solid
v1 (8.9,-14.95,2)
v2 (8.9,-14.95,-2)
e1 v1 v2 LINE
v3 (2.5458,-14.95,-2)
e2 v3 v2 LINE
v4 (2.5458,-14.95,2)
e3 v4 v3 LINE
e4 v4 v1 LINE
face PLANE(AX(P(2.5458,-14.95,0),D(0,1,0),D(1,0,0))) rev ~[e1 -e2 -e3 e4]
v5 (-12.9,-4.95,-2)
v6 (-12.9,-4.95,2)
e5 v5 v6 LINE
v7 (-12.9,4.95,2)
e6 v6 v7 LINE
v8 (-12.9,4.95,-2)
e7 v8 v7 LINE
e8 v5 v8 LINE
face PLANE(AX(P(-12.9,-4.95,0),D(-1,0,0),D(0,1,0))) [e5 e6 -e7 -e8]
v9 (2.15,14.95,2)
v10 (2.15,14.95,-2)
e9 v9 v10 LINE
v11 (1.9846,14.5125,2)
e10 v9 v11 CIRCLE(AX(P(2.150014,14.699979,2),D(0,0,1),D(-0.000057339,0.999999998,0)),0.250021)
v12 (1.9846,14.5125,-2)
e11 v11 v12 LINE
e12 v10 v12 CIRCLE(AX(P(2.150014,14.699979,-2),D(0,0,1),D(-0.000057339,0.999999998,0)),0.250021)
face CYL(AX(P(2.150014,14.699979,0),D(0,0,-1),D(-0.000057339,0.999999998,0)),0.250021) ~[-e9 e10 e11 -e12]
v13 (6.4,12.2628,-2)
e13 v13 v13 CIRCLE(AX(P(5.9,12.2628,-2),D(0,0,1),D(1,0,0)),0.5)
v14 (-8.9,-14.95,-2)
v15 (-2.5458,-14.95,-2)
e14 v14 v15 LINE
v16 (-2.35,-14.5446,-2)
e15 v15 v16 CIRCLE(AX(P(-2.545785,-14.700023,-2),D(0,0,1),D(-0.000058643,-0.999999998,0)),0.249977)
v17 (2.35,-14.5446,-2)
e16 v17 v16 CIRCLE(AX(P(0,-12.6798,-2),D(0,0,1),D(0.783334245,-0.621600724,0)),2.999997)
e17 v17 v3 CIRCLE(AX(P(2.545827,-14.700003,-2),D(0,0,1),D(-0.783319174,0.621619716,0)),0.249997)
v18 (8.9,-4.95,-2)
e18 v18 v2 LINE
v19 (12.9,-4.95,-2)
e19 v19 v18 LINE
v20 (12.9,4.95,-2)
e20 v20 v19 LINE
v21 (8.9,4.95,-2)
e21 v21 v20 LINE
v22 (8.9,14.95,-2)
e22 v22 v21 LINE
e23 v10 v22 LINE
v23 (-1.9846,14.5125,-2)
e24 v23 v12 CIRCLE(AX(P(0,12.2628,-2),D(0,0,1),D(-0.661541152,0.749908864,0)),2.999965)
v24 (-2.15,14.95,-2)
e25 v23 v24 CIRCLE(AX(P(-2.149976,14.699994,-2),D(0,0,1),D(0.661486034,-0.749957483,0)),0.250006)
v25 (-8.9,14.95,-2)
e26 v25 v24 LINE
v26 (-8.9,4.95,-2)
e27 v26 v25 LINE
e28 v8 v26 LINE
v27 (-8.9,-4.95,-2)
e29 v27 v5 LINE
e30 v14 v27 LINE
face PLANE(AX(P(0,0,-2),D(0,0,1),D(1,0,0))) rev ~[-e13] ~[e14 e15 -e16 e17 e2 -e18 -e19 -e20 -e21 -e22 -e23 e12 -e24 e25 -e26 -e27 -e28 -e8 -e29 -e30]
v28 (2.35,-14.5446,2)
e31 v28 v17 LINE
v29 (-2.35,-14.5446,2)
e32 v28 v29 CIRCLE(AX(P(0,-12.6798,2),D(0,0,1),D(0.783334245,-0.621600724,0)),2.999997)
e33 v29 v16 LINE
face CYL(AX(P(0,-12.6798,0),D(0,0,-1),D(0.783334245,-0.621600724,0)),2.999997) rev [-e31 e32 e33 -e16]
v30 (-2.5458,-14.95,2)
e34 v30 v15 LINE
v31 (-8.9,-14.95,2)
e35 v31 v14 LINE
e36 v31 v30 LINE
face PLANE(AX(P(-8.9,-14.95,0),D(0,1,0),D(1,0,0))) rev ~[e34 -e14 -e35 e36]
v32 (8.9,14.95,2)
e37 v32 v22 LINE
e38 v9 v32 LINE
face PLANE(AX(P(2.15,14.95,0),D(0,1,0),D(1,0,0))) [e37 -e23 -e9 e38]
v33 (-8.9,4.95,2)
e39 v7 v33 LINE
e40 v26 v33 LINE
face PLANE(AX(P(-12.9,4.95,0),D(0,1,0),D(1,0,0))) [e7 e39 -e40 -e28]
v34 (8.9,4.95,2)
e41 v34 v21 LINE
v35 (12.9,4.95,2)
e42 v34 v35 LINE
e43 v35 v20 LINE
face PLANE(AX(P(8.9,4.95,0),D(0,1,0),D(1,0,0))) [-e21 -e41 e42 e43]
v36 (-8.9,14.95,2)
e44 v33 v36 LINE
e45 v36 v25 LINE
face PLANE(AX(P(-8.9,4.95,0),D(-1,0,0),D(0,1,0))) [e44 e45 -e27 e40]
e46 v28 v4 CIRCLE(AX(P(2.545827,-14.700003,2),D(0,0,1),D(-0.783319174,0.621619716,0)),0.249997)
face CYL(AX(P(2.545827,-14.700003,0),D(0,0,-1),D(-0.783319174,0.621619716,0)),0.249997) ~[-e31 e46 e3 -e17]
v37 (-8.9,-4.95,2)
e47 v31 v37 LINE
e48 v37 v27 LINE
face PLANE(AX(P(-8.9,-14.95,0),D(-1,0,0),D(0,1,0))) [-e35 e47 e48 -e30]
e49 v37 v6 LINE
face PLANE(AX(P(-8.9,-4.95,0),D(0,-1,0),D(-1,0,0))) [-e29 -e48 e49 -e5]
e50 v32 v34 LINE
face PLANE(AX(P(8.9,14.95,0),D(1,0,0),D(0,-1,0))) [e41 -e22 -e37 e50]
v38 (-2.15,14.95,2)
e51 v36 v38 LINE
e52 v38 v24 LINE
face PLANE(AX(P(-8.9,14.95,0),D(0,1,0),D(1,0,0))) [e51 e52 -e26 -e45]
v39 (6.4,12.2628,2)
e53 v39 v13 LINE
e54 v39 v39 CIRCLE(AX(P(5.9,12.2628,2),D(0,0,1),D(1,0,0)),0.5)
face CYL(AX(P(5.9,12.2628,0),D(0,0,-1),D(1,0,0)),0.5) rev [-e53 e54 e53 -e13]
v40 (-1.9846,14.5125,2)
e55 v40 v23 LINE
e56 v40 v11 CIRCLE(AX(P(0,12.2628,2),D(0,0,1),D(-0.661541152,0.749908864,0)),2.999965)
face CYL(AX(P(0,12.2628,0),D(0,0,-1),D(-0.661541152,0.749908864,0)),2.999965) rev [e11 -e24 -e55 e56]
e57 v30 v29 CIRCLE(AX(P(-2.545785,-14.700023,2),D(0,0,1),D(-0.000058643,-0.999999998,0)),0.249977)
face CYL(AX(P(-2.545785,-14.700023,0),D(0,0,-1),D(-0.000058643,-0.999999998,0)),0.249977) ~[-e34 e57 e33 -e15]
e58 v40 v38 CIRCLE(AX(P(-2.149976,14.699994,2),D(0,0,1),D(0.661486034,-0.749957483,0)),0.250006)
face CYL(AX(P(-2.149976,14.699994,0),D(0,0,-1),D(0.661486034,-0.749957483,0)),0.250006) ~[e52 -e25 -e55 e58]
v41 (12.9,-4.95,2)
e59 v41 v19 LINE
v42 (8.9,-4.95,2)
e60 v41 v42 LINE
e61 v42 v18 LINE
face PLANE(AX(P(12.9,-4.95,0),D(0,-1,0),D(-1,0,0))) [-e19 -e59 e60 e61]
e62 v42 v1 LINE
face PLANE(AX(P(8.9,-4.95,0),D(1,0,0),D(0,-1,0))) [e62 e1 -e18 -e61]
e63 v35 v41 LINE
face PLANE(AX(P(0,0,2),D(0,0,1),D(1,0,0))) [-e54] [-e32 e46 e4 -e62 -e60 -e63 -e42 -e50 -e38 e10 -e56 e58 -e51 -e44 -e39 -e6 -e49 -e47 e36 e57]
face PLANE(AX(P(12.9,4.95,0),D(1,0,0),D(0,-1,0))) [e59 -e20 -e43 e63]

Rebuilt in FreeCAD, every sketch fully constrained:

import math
import FreeCAD as App
import Part
import Sketcher

doc = App.newDocument("Part")
body = doc.addObject("PartDesign::Body", "Body")

sketch1 = body.newObject("Sketcher::SketchObject", "Sketch")
sketch1.AttachmentSupport = (doc.getObject("XY_Plane"), [""])
sketch1.MapMode = "FlatFace"
sketch1.addGeometry(Part.LineSegment(App.Vector(-8.9, 14.95, 0), App.Vector(-8.9, 4.95, 0)), False)
sketch1.addGeometry(Part.LineSegment(App.Vector(-8.9, 4.95, 0), App.Vector(-12.9, 4.95, 0)), False)
sketch1.addGeometry(Part.LineSegment(App.Vector(-12.9, 4.95, 0), App.Vector(-12.9, -4.95, 0)), False)
sketch1.addGeometry(Part.LineSegment(App.Vector(-12.9, -4.95, 0), App.Vector(-8.9, -4.95, 0)), False)
sketch1.addGeometry(Part.LineSegment(App.Vector(-8.9, -4.95, 0), App.Vector(-8.9, -14.95, 0)), False)
sketch1.addGeometry(Part.LineSegment(App.Vector(-8.9, -14.95, 0), App.Vector(-2.55, -14.95, 0)), False)
sketch1.addGeometry(Part.ArcOfCircle(Part.Circle(App.Vector(-2.55, -14.7, 0), App.Vector(0, 0, 1), 0.25), math.radians(-90), math.radians(38)), False)
sketch1.addGeometry(Part.ArcOfCircle(Part.Circle(App.Vector(0, -12.68, 0), App.Vector(0, 0, 1), 3), math.radians(-38), math.radians(218)), False)
sketch1.addGeometry(Part.ArcOfCircle(Part.Circle(App.Vector(2.55, -14.7, 0), App.Vector(0, 0, 1), 0.25), math.radians(142), math.radians(270)), False)
sketch1.addGeometry(Part.LineSegment(App.Vector(2.55, -14.95, 0), App.Vector(8.9, -14.95, 0)), False)
sketch1.addGeometry(Part.LineSegment(App.Vector(8.9, -14.95, 0), App.Vector(8.9, -4.95, 0)), False)
sketch1.addGeometry(Part.LineSegment(App.Vector(8.9, -4.95, 0), App.Vector(12.9, -4.95, 0)), False)
sketch1.addGeometry(Part.LineSegment(App.Vector(12.9, -4.95, 0), App.Vector(12.9, 4.95, 0)), False)
sketch1.addGeometry(Part.LineSegment(App.Vector(12.9, 4.95, 0), App.Vector(8.9, 4.95, 0)), False)
sketch1.addGeometry(Part.LineSegment(App.Vector(8.9, 4.95, 0), App.Vector(8.9, 14.95, 0)), False)
sketch1.addGeometry(Part.LineSegment(App.Vector(8.9, 14.95, 0), App.Vector(2.15, 14.95, 0)), False)
sketch1.addGeometry(Part.ArcOfCircle(Part.Circle(App.Vector(2.15, 14.7, 0), App.Vector(0, 0, 1), 0.25), math.radians(90), math.radians(229)), False)
sketch1.addGeometry(Part.ArcOfCircle(Part.Circle(App.Vector(0, 12.26, 0), App.Vector(0, 0, 1), 3), math.radians(131), math.radians(409)), False)
sketch1.addGeometry(Part.ArcOfCircle(Part.Circle(App.Vector(-2.15, 14.7, 0), App.Vector(0, 0, 1), 0.25), math.radians(-49), math.radians(90)), False)
sketch1.addGeometry(Part.LineSegment(App.Vector(-2.15, 14.95, 0), App.Vector(-8.9, 14.95, 0)), False)
sketch1.addGeometry(Part.Circle(App.Vector(5.9, 12.26, 0), App.Vector(0, 0, 1), 0.5), False)
sketch1.addConstraint(Sketcher.Constraint("Coincident", 0, 2, 1, 1))
sketch1.addConstraint(Sketcher.Constraint("Coincident", 1, 2, 2, 1))
sketch1.addConstraint(Sketcher.Constraint("Coincident", 2, 2, 3, 1))
sketch1.addConstraint(Sketcher.Constraint("Coincident", 3, 2, 4, 1))
sketch1.addConstraint(Sketcher.Constraint("Coincident", 4, 2, 5, 1))
sketch1.addConstraint(Sketcher.Constraint("Tangent", 5, 2, 6, 1))
sketch1.addConstraint(Sketcher.Constraint("Tangent", 6, 2, 7, 2))
sketch1.addConstraint(Sketcher.Constraint("Tangent", 7, 1, 8, 1))
sketch1.addConstraint(Sketcher.Constraint("Tangent", 8, 2, 9, 1))
sketch1.addConstraint(Sketcher.Constraint("Coincident", 9, 2, 10, 1))
sketch1.addConstraint(Sketcher.Constraint("Coincident", 10, 2, 11, 1))
sketch1.addConstraint(Sketcher.Constraint("Coincident", 11, 2, 12, 1))
sketch1.addConstraint(Sketcher.Constraint("Coincident", 12, 2, 13, 1))
sketch1.addConstraint(Sketcher.Constraint("Coincident", 13, 2, 14, 1))
sketch1.addConstraint(Sketcher.Constraint("Coincident", 14, 2, 15, 1))
sketch1.addConstraint(Sketcher.Constraint("Tangent", 15, 2, 16, 1))
sketch1.addConstraint(Sketcher.Constraint("Tangent", 16, 2, 17, 2))
sketch1.addConstraint(Sketcher.Constraint("Tangent", 17, 1, 18, 1))
sketch1.addConstraint(Sketcher.Constraint("Tangent", 18, 2, 19, 1))
sketch1.addConstraint(Sketcher.Constraint("Coincident", 19, 2, 0, 1))
sketch1.addConstraint(Sketcher.Constraint("Vertical", 0))
sketch1.addConstraint(Sketcher.Constraint("Horizontal", 1))
sketch1.addConstraint(Sketcher.Constraint("Vertical", 2))
sketch1.addConstraint(Sketcher.Constraint("Horizontal", 3))
sketch1.addConstraint(Sketcher.Constraint("Vertical", 4))
sketch1.addConstraint(Sketcher.Constraint("Horizontal", 5))
sketch1.addConstraint(Sketcher.Constraint("Horizontal", 9))
sketch1.addConstraint(Sketcher.Constraint("Vertical", 10))
sketch1.addConstraint(Sketcher.Constraint("Horizontal", 11))
sketch1.addConstraint(Sketcher.Constraint("Vertical", 12))
sketch1.addConstraint(Sketcher.Constraint("Horizontal", 13))
sketch1.addConstraint(Sketcher.Constraint("Vertical", 14))
sketch1.addConstraint(Sketcher.Constraint("Horizontal", 15))
sketch1.addConstraint(Sketcher.Constraint("Horizontal", 19))
sketch1.addConstraint(Sketcher.Constraint("Equal", 6, 8))
sketch1.addConstraint(Sketcher.Constraint("Equal", 8, 16))
sketch1.addConstraint(Sketcher.Constraint("Equal", 7, 17))
sketch1.addConstraint(Sketcher.Constraint("Equal", 16, 18))
sketch1.addConstraint(Sketcher.Constraint("Symmetric", 0, 2, 10, 2, -1, 1))
sketch1.addConstraint(Sketcher.Constraint("Symmetric", 2, 2, 12, 2, -1, 1))
sketch1.addConstraint(Sketcher.Constraint("Symmetric", 4, 2, 14, 2, -1, 1))
sketch1.addConstraint(Sketcher.Constraint("Symmetric", 6, 3, 8, 3, -2))
sketch1.addConstraint(Sketcher.Constraint("Symmetric", 16, 3, 18, 3, -2))
sketch1.addConstraint(Sketcher.Constraint("Symmetric", 3, 2, 10, 2, -2))
sketch1.addConstraint(Sketcher.Constraint("Horizontal", 17, 3, 20, 3))
sketch1.addConstraint(Sketcher.Constraint("Diameter", 20, 1.0))
sketch1.addConstraint(Sketcher.Constraint("Radius", 7, 3.0))
sketch1.addConstraint(Sketcher.Constraint("DistanceX", 1, 2, 1, 1, 4.0))
sketch1.addConstraint(Sketcher.Constraint("DistanceY", 0, 2, 0, 1, 10.0))
sketch1.addConstraint(Sketcher.Constraint("Radius", 6, 0.25))
sketch1.addConstraint(Sketcher.Constraint("DistanceY", 2, 2, 2, 1, 9.9))
sketch1.addConstraint(Sketcher.Constraint("DistanceX", 20, 3, 13, 2, 3.0))
sketch1.addConstraint(Sketcher.Constraint("DistanceX", 6, 2, 7, 1, 4.7))
sketch1.addConstraint(Sketcher.Constraint("DistanceX", 15, 2, 15, 1, 6.75))
sketch1.addConstraint(Sketcher.Constraint("DistanceX", -1, 1, 20, 3, 5.9))
pad1 = body.newObject("PartDesign::Pad", "Pad")
pad1.Profile = sketch1
pad1.Length = 4
pad1.Midplane = True

doc.recompute()
